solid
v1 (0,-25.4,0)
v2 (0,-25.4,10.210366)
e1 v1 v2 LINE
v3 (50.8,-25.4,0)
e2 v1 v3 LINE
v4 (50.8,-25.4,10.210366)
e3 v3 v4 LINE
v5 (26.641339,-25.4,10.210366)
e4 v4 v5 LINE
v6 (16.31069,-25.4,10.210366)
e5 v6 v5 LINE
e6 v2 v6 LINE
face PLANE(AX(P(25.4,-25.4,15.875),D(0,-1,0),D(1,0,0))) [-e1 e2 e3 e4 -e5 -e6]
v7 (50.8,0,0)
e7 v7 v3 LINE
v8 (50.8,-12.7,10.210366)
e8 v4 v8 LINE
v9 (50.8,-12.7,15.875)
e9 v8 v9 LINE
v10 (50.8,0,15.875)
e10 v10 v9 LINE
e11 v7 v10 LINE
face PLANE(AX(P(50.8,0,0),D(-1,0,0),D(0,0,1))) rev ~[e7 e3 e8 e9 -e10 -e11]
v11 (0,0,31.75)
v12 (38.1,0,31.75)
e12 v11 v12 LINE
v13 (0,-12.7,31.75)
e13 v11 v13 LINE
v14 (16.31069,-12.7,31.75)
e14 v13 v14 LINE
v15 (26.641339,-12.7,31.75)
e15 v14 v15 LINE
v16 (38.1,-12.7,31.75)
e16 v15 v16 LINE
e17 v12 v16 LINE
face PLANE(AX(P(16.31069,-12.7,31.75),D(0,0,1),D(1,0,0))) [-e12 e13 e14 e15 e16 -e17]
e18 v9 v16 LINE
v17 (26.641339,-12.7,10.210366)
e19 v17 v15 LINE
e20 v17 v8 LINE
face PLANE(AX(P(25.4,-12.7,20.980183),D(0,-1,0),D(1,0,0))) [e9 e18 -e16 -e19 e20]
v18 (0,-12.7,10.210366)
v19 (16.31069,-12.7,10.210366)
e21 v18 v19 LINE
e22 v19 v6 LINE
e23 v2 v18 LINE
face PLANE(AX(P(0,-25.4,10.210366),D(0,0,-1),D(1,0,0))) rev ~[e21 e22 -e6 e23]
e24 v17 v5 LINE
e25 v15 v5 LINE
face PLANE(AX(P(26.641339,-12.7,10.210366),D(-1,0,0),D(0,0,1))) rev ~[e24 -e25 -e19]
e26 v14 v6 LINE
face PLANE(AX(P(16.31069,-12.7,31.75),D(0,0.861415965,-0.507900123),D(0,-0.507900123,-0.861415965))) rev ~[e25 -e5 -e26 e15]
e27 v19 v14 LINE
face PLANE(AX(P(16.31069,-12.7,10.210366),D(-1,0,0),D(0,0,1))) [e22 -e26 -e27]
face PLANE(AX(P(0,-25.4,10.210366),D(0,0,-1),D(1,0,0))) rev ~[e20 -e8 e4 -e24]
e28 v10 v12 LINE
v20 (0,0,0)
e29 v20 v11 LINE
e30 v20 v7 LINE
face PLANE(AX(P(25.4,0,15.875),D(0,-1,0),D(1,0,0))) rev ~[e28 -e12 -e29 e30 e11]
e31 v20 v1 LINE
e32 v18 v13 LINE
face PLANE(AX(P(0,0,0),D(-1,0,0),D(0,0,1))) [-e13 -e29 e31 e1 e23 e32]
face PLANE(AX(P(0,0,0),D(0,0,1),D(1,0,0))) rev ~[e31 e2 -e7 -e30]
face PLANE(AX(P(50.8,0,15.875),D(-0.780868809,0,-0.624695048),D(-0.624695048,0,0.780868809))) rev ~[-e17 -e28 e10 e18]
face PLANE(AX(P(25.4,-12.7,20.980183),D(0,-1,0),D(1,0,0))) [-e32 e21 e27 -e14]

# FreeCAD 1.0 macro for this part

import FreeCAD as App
import Part
import Sketcher
Q = App.Units.Quantity


def add_polygon(sketch, points):
    """Adds a closed chain of lines whose ends are joined by coincident constraints."""
    first, n = sketch.GeometryCount, len(points)
    for a, b in zip(points, points[1:] + points[:1]):
        sketch.addGeometry(Part.LineSegment(App.Vector(*a, 0), App.Vector(*b, 0)), False)
    for i in range(n):
        sketch.addConstraint(Sketcher.Constraint("Coincident", first + i, 2, first + (i + 1) % n, 1))

doc = App.newDocument("Part")
params = doc.addObject("Spreadsheet::Sheet", "Params")
for row, (alias, value) in enumerate([
    ("sketch1_width", "2 in"),
    ("sketch1_height", "1.25 in"),
    ("pad1_length", "1 in"),
    ("sketch2_width", "0.5 in"),
    ("sketch2_height", "0.625 in"),
    ("pocket1_length", "0.5 in"),
    ("sketch3_width", "2 in"),
    ("pocket2_length", "0.5 in"),
    ("pad2_length", "1 in"),
    ("sketch5_width", "1 in"),
    ("sketch5_width2", "0.5 in"),
    ("pocket3_length", "1 in"),
], start=1):
    params.set(f"A{row}", alias)
    params.set(f"B{row}", "=" + value)
    params.setAlias(f"B{row}", alias)

body = doc.addObject("PartDesign::Body", "Body")

# Sketch on XZ plane
sketch1 = doc.addObject("Sketcher::SketchObject", "Sketch")
body.addObject(sketch1)
sketch1.AttachmentSupport = (doc.XZ_Plane, [""])
sketch1.MapMode = "FlatFace"
add_polygon(sketch1, [(0, 32), (0, 0), (51, 0), (51, 32)])  # lines 0-3
sketch1.addConstraint([
    Sketcher.Constraint("Vertical", 0),
    Sketcher.Constraint("Horizontal", 1),
    Sketcher.Constraint("Vertical", 2),
    Sketcher.Constraint("Horizontal", 3),
    Sketcher.Constraint("Coincident", 0, 2, -1, 1),
    Sketcher.Constraint("DistanceX", 1, 1, 1, 2, Q("2 in")),
    Sketcher.Constraint("DistanceY", 0, 2, 0, 1, Q("1.25 in")),
])
sketch1.setExpression("Constraints[9]", "Params.sketch1_width")
sketch1.setExpression("Constraints[10]", "Params.sketch1_height")
pad1 = doc.addObject("PartDesign::Pad", "Pad")
body.addObject(pad1)
pad1.Profile = sketch1
pad1.setExpression("Length", "Params.pad1_length")

# Sketch on XZ plane
sketch2 = doc.addObject("Sketcher::SketchObject", "Sketch001")
body.addObject(sketch2)
sketch2.AttachmentSupport = (doc.XZ_Plane, [""])
sketch2.MapMode = "FlatFace"
add_polygon(sketch2, [(51, 32), (51, 16), (38, 32)])  # lines 0-2
sketch2.addConstraint([
    Sketcher.Constraint("Vertical", 0),
    Sketcher.Constraint("Horizontal", 2),
    Sketcher.Constraint("DistanceX", 2, 1, 2, 2, Q("0.5 in")),
    Sketcher.Constraint("DistanceX", -1, 1, 0, 2, Q("2 in")),
    Sketcher.Constraint("DistanceY", 0, 2, 0, 1, Q("0.625 in")),
    Sketcher.Constraint("DistanceY", -1, 1, 1, 2, Q("1.25 in")),
])
sketch2.setExpression("Constraints[5]", "Params.sketch2_width")
sketch2.setExpression("Constraints[7]", "Params.sketch2_height")
pocket1 = doc.addObject("PartDesign::Pocket", "Pocket")
body.addObject(pocket1)
pocket1.Profile = sketch2
pocket1.setExpression("Length", "Params.pocket1_length")
pocket1.Reversed = True

# Sketch on XZ plane
sketch3 = doc.addObject("Sketcher::SketchObject", "Sketch002")
body.addObject(sketch3)
sketch3.AttachmentSupport = (doc.XZ_Plane, [""])
sketch3.MapMode = "FlatFace"
sketch3.AttachmentOffset = App.Placement(App.Vector(0, 0, 1 * 25.4), App.Rotation())
add_polygon(sketch3, [(0, 32), (0, 10), (51, 10), (51, 32)])  # lines 0-3
sketch3.addConstraint([
    Sketcher.Constraint("Vertical", 0),
    Sketcher.Constraint("Horizontal", 1),
    Sketcher.Constraint("Vertical", 2),
    Sketcher.Constraint("Horizontal", 3),
    Sketcher.Constraint("PointOnObject", 0, 2, -2),
    Sketcher.Constraint("DistanceX", 1, 1, 1, 2, Q("2 in")),
    Sketcher.Constraint("DistanceY", -1, 1, 2, 2, Q("1.25 in")),
    Sketcher.Constraint("DistanceY", 0, 2, 0, 1, 21.539634),
])
sketch3.setExpression("Constraints[9]", "Params.sketch3_width")
pocket2 = doc.addObject("PartDesign::Pocket", "Pocket001")
body.addObject(pocket2)
pocket2.Profile = sketch3
pocket2.setExpression("Length", "Params.pocket2_length")

# Sketch on XZ plane
sketch4 = doc.addObject("Sketcher::SketchObject", "Sketch003")
body.addObject(sketch4)
sketch4.AttachmentSupport = (doc.XZ_Plane, [""])
sketch4.MapMode = "FlatFace"
sketch4.AttachmentOffset = App.Placement(App.Vector(0, 0, 0.5 * 25.4), App.Rotation())
add_polygon(sketch4, [(16, 32), (16, 10), (27, 10), (27, 32)])  # lines 0-3
sketch4.addConstraint([
    Sketcher.Constraint("Vertical", 0),
    Sketcher.Constraint("Horizontal", 1),
    Sketcher.Constraint("Vertical", 2),
    Sketcher.Constraint("Horizontal", 3),
    Sketcher.Constraint("DistanceY", -1, 1, 2, 2, Q("1.25 in")),
    Sketcher.Constraint("DistanceX", 1, 1, 1, 2, 10.330649),
    Sketcher.Constraint("DistanceY", 0, 2, 0, 1, 21.539634),
    Sketcher.Constraint("DistanceX", -1, 1, 0, 2, 16.31069),
])
pad2 = doc.addObject("PartDesign::Pad", "Pad001")
body.addObject(pad2)
pad2.Profile = sketch4
pad2.setExpression("Length", "Params.pad2_length")

# Sketch on YZ plane
sketch5 = doc.addObject("Sketcher::SketchObject", "Sketch004")
body.addObject(sketch5)
sketch5.AttachmentSupport = (doc.YZ_Plane, [""])
sketch5.MapMode = "FlatFace"
sketch5.AttachmentOffset = App.Placement(App.Vector(0, 0, 16.31069), App.Rotation())
add_polygon(sketch5, [(-38, 32), (-13, 32), (-25, 10), (-38, 10)])  # lines 0-3
sketch5.addConstraint([
    Sketcher.Constraint("Horizontal", 0),
    Sketcher.Constraint("Horizontal", 2),
    Sketcher.Constraint("Vertical", 3),
    Sketcher.Constraint("DistanceX", 0, 1, 0, 2, Q("1 in")),
    Sketcher.Constraint("DistanceX", 2, 2, 2, 1, Q("0.5 in")),
    Sketcher.Constraint("DistanceX", 1, 2, -1, 1, Q("1 in")),
    Sketcher.Constraint("DistanceY", -1, 1, 0, 2, Q("1.25 in")),
    Sketcher.Constraint("DistanceY", 3, 1, 3, 2, 21.539634),
])
sketch5.setExpression("Constraints[7]", "Params.sketch5_width")
sketch5.setExpression("Constraints[8]", "Params.sketch5_width2")
pocket3 = doc.addObject("PartDesign::Pocket", "Pocket002")
body.addObject(pocket3)
pocket3.Profile = sketch5
pocket3.setExpression("Length", "Params.pocket3_length")
pocket3.Reversed = True

doc.recompute()
